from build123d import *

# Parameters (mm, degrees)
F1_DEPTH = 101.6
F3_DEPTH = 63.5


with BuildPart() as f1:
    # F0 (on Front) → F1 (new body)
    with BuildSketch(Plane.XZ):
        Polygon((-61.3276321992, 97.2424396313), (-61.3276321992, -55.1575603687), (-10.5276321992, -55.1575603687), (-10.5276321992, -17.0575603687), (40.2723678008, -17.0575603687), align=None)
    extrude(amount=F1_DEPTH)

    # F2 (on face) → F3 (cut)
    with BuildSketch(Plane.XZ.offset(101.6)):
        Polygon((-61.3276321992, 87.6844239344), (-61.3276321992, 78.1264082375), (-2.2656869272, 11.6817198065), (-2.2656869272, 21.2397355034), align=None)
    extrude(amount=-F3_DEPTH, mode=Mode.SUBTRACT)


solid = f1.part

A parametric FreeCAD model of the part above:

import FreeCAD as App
import Part
import Sketcher

V = App.Vector
Q = App.Units.Quantity


def add_polygon(sketch, points):
    """Adds a closed chain of lines whose ends are joined by coincident constraints."""
    first, n = sketch.GeometryCount, len(points)
    for a, b in zip(points, points[1:] + points[:1]):
        sketch.addGeometry(Part.LineSegment(App.Vector(*a, 0), App.Vector(*b, 0)), False)
    for i in range(n):
        sketch.addConstraint(Sketcher.Constraint("Coincident", first + i, 2, first + (i + 1) % n, 1))

doc = App.newDocument("Part")
body = doc.addObject("PartDesign::Body", "Body")

# Sketch on XZ plane
sketch1 = doc.addObject("Sketcher::SketchObject", "Sketch")
body.addObject(sketch1)
sketch1.AttachmentSupport = (doc.XZ_Plane, [""])
sketch1.MapMode = "FlatFace"
add_polygon(sketch1, [(-61, 97), (-61, -55), (-11, -55), (-11, -17), (40, -17)])  # lines 0-4
sketch1.addConstraint(Sketcher.Constraint("Vertical", 0))
sketch1.addConstraint(Sketcher.Constraint("Horizontal", 1))
sketch1.addConstraint(Sketcher.Constraint("Vertical", 2))
sketch1.addConstraint(Sketcher.Constraint("Horizontal", 3))
sketch1.addConstraint(Sketcher.Constraint("Equal", 1, 3))
sketch1.addConstraint(Sketcher.Constraint("DistanceX", 1, 1, 1, 2, Q("2 in")))
sketch1.addConstraint(Sketcher.Constraint("DistanceY", 0, 2, 0, 1, Q("6 in")))
sketch1.addConstraint(Sketcher.Constraint("DistanceY", 2, 1, 2, 2, Q("1.5 in")))
sketch1.addConstraint(Sketcher.Constraint("DistanceY", 0, 2, -1, 1, 55.15756))
sketch1.addConstraint(Sketcher.Constraint("DistanceX", 0, 2, -1, 1, 61.327632))
pad1 = doc.addObject("PartDesign::Pad", "Pad")
body.addObject(pad1)
pad1.Profile = sketch1
pad1.Length = Q("4 in")

# Sketch on XZ plane
sketch2 = doc.addObject("Sketcher::SketchObject", "Sketch001")
body.addObject(sketch2)
sketch2.AttachmentSupport = (doc.XZ_Plane, [""])
sketch2.MapMode = "FlatFace"
sketch2.AttachmentOffset = App.Placement(V(0, 0, 4 * 25.4), App.Rotation())
add_polygon(sketch2, [(-61, 88), (-61, 78), (-2, 12), (-2, 21)])  # lines 0-3
sketch2.addConstraint(Sketcher.Constraint("Vertical", 0))
sketch2.addConstraint(Sketcher.Constraint("Vertical", 2))
sketch2.addConstraint(Sketcher.Constraint("Parallel", 1, 3))
sketch2.addConstraint(Sketcher.Constraint("Distance", 1, Q("3.5 in")))
sketch2.addConstraint(Sketcher.Constraint("DistanceY", 0, 2, 0, 1, Q("0.3762998 in")))
sketch2.addConstraint(Sketcher.Constraint("DistanceY", -1, 1, 0, 2, 78.126408))
sketch2.addConstraint(Sketcher.Constraint("DistanceY", -1, 1, 1, 2, 11.68172))
sketch2.addConstraint(Sketcher.Constraint("DistanceX", 0, 2, -1, 1, 61.327632))
pocket1 = doc.addObject("PartDesign::Pocket", "Pocket")
body.addObject(pocket1)
pocket1.Profile = sketch2
pocket1.Length = Q("2.5 in")

doc.recompute()
